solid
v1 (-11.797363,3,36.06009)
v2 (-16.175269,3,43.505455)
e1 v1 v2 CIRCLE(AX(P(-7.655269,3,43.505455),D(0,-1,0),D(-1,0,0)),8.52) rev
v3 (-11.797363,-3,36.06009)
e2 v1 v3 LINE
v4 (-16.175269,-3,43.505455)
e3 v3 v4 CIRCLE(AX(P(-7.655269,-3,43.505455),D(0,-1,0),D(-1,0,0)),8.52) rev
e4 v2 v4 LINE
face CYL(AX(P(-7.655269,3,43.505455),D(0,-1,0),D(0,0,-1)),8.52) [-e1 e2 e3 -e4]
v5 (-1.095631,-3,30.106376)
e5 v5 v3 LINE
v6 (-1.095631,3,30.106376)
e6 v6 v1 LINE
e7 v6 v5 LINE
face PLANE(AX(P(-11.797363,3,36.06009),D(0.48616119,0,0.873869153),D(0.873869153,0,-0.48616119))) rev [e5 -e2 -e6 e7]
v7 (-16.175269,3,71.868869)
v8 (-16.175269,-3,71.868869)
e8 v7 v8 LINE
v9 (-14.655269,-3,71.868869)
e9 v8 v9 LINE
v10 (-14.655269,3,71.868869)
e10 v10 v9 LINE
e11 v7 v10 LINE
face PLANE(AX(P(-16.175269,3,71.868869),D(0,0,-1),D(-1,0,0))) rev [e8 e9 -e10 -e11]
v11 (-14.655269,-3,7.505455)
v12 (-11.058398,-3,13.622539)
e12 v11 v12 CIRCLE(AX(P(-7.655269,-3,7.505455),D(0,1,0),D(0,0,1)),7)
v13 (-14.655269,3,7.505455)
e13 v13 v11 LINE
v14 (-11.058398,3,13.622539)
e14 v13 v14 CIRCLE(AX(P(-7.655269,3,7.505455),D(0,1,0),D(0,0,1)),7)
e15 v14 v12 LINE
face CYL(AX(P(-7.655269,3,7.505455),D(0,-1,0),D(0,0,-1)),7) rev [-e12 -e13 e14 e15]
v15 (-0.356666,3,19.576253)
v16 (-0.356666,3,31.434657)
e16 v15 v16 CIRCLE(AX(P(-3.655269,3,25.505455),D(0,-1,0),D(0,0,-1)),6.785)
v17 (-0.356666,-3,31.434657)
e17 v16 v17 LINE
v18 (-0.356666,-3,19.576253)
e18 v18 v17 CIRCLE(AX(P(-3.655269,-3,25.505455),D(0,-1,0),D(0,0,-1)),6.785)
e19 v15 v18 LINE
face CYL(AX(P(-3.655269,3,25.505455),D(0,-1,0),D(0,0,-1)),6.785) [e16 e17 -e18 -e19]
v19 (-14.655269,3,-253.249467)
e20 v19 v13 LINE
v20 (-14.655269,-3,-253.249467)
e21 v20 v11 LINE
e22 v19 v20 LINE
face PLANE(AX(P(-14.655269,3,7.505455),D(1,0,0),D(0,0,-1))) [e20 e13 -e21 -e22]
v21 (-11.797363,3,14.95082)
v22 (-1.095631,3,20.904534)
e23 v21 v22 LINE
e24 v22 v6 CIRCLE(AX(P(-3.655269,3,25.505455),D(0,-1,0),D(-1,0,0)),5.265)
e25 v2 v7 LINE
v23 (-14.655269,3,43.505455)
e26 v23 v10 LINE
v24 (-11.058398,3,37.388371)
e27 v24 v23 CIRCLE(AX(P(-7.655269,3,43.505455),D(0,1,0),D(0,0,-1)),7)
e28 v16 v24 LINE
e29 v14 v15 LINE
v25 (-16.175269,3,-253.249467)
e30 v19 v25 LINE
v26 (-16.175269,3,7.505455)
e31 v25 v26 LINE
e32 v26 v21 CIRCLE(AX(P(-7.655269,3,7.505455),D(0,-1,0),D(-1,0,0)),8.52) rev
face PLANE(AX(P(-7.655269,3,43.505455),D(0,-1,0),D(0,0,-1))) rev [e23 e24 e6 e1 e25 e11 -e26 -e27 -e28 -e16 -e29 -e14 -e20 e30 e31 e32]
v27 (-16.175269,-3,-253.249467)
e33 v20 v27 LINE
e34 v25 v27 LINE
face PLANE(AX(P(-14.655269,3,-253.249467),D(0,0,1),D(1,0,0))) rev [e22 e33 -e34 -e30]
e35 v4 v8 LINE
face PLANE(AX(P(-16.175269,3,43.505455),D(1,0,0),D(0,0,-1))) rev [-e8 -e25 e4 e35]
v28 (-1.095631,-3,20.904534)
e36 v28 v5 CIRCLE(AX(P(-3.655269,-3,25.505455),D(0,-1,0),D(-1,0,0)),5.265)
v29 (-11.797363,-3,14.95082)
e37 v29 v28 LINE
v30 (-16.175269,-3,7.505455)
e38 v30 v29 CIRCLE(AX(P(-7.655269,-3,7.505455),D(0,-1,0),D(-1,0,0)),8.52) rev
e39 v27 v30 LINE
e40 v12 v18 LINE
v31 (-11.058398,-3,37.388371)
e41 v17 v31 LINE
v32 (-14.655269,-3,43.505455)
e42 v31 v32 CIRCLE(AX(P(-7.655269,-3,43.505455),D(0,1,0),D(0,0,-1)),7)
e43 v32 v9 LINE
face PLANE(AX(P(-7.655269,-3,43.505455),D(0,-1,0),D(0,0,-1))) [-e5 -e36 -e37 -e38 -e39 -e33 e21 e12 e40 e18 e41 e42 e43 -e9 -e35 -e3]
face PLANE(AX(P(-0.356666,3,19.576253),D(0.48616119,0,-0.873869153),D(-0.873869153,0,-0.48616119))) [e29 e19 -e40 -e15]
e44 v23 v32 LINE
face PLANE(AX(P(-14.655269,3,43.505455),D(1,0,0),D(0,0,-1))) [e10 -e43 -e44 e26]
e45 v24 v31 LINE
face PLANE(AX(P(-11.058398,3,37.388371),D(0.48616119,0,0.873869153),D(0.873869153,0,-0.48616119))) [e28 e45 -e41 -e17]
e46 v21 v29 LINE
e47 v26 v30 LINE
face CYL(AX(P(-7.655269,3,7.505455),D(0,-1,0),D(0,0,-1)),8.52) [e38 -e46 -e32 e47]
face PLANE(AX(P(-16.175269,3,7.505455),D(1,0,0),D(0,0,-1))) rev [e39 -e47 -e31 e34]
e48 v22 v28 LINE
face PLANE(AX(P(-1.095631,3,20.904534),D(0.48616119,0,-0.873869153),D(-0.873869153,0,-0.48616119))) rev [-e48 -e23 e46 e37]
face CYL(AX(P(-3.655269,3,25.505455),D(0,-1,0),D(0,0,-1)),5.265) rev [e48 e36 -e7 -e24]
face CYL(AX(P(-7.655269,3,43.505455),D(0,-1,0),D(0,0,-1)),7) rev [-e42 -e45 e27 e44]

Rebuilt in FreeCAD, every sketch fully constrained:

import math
import FreeCAD as App
import Part
import Sketcher

V = App.Vector

doc = App.newDocument("Part")
body = doc.addObject("PartDesign::Body", "Body")

sketch1 = body.newObject("Sketcher::SketchObject", "Sketch")
sketch1.AttachmentSupport = (doc.getObject("XZ_Plane"), [""])
sketch1.MapMode = "FlatFace"
sketch1.addGeometry(Part.LineSegment(V(-14.7, -253.2, 0), V(-14.7, 7.5, 0)), False)
sketch1.addGeometry(Part.ArcOfCircle(Part.Circle(V(-7.7, 7.5, 0), V(0, 0, 1), 7), math.radians(119), math.radians(180)), False)
sketch1.addGeometry(Part.LineSegment(V(-11.1, 13.6, 0), V(-0.4, 19.6, 0)), False)
sketch1.addGeometry(Part.ArcOfCircle(Part.Circle(V(-3.7, 25.5, 0), V(0, 0, 1), 6.8), math.radians(-61), math.radians(61)), False)
sketch1.addGeometry(Part.LineSegment(V(-0.4, 31.4, 0), V(-11.1, 37.4, 0)), False)
sketch1.addGeometry(Part.ArcOfCircle(Part.Circle(V(-7.7, 43.5, 0), V(0, 0, 1), 7), math.radians(-180), math.radians(-119)), False)
sketch1.addGeometry(Part.LineSegment(V(-14.7, 43.5, 0), V(-14.7, 71.9, 0)), False)
sketch1.addGeometry(Part.LineSegment(V(-14.7, 71.9, 0), V(-16.2, 71.9, 0)), False)
sketch1.addGeometry(Part.LineSegment(V(-16.2, 71.9, 0), V(-16.2, 43.5, 0)), False)
sketch1.addGeometry(Part.ArcOfCircle(Part.Circle(V(-7.7, 43.5, 0), V(0, 0, 1), 8.5), math.radians(180), math.radians(241)), False)
sketch1.addGeometry(Part.LineSegment(V(-11.8, 36.1, 0), V(-1.1, 30.1, 0)), False)
sketch1.addGeometry(Part.ArcOfCircle(Part.Circle(V(-3.7, 25.5, 0), V(0, 0, 1), 5.3), math.radians(-61), math.radians(61)), False)
sketch1.addGeometry(Part.LineSegment(V(-1.1, 20.9, 0), V(-11.8, 15, 0)), False)
sketch1.addGeometry(Part.ArcOfCircle(Part.Circle(V(-7.7, 7.5, 0), V(0, 0, 1), 8.5), math.radians(119), math.radians(180)), False)
sketch1.addGeometry(Part.LineSegment(V(-16.2, 7.5, 0), V(-16.2, -253.2, 0)), False)
sketch1.addGeometry(Part.LineSegment(V(-16.2, -253.2, 0), V(-14.7, -253.2, 0)), False)
sketch1.addConstraint(Sketcher.Constraint("Tangent", 0, 2, 1, 2))
sketch1.addConstraint(Sketcher.Constraint("Tangent", 1, 1, 2, 1))
sketch1.addConstraint(Sketcher.Constraint("Tangent", 2, 2, 3, 1))
sketch1.addConstraint(Sketcher.Constraint("Tangent", 3, 2, 4, 1))
sketch1.addConstraint(Sketcher.Constraint("Tangent", 4, 2, 5, 2))
sketch1.addConstraint(Sketcher.Constraint("Tangent", 5, 1, 6, 1))
sketch1.addConstraint(Sketcher.Constraint("Coincident", 6, 2, 7, 1))
sketch1.addConstraint(Sketcher.Constraint("Coincident", 7, 2, 8, 1))
sketch1.addConstraint(Sketcher.Constraint("Tangent", 8, 2, 9, 1))
sketch1.addConstraint(Sketcher.Constraint("Tangent", 9, 2, 10, 1))
sketch1.addConstraint(Sketcher.Constraint("Tangent", 10, 2, 11, 2))
sketch1.addConstraint(Sketcher.Constraint("Tangent", 11, 1, 12, 1))
sketch1.addConstraint(Sketcher.Constraint("Tangent", 12, 2, 13, 1))
sketch1.addConstraint(Sketcher.Constraint("Tangent", 13, 2, 14, 1))
sketch1.addConstraint(Sketcher.Constraint("Coincident", 14, 2, 15, 1))
sketch1.addConstraint(Sketcher.Constraint("Coincident", 15, 2, 0, 1))
sketch1.addConstraint(Sketcher.Constraint("Vertical", 0))
sketch1.addConstraint(Sketcher.Constraint("Vertical", 6))
sketch1.addConstraint(Sketcher.Constraint("Horizontal", 7))
sketch1.addConstraint(Sketcher.Constraint("Vertical", 8))
sketch1.addConstraint(Sketcher.Constraint("Vertical", 14))
sketch1.addConstraint(Sketcher.Constraint("Horizontal", 15))
sketch1.addConstraint(Sketcher.Constraint("Coincident", 9, 3, 5, 3))
sketch1.addConstraint(Sketcher.Constraint("Coincident", 11, 3, 3, 3))
sketch1.addConstraint(Sketcher.Constraint("Coincident", 13, 3, 1, 3))
sketch1.addConstraint(Sketcher.Constraint("Equal", 1, 5))
sketch1.addConstraint(Sketcher.Constraint("Equal", 9, 13))
sketch1.addConstraint(Sketcher.Constraint("Parallel", 4, 10))
sketch1.addConstraint(Sketcher.Constraint("Vertical", 1, 3, 5, 3))
sketch1.addConstraint(Sketcher.Constraint("Vertical", 2, 2, 3, 2))
sketch1.addConstraint(Sketcher.Constraint("Radius", 1, 7.0))
sketch1.addConstraint(Sketcher.Constraint("Radius", 9, 8.52))
sketch1.addConstraint(Sketcher.Constraint("Radius", 3, 6.785))
sketch1.addConstraint(Sketcher.Constraint("DistanceX", 1, 3, 3, 3, 4.0))
sketch1.addConstraint(Sketcher.Constraint("DistanceY", 1, 3, 3, 3, 18.0))
sketch1.addConstraint(Sketcher.Constraint("DistanceY", 4, 2, 6, 2, 34.480499))
sketch1.addConstraint(Sketcher.Constraint("DistanceY", 0, 1, 0, 2, 260.754922))
sketch1.addConstraint(Sketcher.Constraint("DistanceX", 1, 3, -1, 1, 7.655269))
sketch1.addConstraint(Sketcher.Constraint("DistanceY", -1, 1, 1, 1, 13.622539))
pad1 = body.newObject("PartDesign::Pad", "Pad")
pad1.Profile = sketch1
pad1.Length = 6
pad1.Midplane = True

doc.recompute()
